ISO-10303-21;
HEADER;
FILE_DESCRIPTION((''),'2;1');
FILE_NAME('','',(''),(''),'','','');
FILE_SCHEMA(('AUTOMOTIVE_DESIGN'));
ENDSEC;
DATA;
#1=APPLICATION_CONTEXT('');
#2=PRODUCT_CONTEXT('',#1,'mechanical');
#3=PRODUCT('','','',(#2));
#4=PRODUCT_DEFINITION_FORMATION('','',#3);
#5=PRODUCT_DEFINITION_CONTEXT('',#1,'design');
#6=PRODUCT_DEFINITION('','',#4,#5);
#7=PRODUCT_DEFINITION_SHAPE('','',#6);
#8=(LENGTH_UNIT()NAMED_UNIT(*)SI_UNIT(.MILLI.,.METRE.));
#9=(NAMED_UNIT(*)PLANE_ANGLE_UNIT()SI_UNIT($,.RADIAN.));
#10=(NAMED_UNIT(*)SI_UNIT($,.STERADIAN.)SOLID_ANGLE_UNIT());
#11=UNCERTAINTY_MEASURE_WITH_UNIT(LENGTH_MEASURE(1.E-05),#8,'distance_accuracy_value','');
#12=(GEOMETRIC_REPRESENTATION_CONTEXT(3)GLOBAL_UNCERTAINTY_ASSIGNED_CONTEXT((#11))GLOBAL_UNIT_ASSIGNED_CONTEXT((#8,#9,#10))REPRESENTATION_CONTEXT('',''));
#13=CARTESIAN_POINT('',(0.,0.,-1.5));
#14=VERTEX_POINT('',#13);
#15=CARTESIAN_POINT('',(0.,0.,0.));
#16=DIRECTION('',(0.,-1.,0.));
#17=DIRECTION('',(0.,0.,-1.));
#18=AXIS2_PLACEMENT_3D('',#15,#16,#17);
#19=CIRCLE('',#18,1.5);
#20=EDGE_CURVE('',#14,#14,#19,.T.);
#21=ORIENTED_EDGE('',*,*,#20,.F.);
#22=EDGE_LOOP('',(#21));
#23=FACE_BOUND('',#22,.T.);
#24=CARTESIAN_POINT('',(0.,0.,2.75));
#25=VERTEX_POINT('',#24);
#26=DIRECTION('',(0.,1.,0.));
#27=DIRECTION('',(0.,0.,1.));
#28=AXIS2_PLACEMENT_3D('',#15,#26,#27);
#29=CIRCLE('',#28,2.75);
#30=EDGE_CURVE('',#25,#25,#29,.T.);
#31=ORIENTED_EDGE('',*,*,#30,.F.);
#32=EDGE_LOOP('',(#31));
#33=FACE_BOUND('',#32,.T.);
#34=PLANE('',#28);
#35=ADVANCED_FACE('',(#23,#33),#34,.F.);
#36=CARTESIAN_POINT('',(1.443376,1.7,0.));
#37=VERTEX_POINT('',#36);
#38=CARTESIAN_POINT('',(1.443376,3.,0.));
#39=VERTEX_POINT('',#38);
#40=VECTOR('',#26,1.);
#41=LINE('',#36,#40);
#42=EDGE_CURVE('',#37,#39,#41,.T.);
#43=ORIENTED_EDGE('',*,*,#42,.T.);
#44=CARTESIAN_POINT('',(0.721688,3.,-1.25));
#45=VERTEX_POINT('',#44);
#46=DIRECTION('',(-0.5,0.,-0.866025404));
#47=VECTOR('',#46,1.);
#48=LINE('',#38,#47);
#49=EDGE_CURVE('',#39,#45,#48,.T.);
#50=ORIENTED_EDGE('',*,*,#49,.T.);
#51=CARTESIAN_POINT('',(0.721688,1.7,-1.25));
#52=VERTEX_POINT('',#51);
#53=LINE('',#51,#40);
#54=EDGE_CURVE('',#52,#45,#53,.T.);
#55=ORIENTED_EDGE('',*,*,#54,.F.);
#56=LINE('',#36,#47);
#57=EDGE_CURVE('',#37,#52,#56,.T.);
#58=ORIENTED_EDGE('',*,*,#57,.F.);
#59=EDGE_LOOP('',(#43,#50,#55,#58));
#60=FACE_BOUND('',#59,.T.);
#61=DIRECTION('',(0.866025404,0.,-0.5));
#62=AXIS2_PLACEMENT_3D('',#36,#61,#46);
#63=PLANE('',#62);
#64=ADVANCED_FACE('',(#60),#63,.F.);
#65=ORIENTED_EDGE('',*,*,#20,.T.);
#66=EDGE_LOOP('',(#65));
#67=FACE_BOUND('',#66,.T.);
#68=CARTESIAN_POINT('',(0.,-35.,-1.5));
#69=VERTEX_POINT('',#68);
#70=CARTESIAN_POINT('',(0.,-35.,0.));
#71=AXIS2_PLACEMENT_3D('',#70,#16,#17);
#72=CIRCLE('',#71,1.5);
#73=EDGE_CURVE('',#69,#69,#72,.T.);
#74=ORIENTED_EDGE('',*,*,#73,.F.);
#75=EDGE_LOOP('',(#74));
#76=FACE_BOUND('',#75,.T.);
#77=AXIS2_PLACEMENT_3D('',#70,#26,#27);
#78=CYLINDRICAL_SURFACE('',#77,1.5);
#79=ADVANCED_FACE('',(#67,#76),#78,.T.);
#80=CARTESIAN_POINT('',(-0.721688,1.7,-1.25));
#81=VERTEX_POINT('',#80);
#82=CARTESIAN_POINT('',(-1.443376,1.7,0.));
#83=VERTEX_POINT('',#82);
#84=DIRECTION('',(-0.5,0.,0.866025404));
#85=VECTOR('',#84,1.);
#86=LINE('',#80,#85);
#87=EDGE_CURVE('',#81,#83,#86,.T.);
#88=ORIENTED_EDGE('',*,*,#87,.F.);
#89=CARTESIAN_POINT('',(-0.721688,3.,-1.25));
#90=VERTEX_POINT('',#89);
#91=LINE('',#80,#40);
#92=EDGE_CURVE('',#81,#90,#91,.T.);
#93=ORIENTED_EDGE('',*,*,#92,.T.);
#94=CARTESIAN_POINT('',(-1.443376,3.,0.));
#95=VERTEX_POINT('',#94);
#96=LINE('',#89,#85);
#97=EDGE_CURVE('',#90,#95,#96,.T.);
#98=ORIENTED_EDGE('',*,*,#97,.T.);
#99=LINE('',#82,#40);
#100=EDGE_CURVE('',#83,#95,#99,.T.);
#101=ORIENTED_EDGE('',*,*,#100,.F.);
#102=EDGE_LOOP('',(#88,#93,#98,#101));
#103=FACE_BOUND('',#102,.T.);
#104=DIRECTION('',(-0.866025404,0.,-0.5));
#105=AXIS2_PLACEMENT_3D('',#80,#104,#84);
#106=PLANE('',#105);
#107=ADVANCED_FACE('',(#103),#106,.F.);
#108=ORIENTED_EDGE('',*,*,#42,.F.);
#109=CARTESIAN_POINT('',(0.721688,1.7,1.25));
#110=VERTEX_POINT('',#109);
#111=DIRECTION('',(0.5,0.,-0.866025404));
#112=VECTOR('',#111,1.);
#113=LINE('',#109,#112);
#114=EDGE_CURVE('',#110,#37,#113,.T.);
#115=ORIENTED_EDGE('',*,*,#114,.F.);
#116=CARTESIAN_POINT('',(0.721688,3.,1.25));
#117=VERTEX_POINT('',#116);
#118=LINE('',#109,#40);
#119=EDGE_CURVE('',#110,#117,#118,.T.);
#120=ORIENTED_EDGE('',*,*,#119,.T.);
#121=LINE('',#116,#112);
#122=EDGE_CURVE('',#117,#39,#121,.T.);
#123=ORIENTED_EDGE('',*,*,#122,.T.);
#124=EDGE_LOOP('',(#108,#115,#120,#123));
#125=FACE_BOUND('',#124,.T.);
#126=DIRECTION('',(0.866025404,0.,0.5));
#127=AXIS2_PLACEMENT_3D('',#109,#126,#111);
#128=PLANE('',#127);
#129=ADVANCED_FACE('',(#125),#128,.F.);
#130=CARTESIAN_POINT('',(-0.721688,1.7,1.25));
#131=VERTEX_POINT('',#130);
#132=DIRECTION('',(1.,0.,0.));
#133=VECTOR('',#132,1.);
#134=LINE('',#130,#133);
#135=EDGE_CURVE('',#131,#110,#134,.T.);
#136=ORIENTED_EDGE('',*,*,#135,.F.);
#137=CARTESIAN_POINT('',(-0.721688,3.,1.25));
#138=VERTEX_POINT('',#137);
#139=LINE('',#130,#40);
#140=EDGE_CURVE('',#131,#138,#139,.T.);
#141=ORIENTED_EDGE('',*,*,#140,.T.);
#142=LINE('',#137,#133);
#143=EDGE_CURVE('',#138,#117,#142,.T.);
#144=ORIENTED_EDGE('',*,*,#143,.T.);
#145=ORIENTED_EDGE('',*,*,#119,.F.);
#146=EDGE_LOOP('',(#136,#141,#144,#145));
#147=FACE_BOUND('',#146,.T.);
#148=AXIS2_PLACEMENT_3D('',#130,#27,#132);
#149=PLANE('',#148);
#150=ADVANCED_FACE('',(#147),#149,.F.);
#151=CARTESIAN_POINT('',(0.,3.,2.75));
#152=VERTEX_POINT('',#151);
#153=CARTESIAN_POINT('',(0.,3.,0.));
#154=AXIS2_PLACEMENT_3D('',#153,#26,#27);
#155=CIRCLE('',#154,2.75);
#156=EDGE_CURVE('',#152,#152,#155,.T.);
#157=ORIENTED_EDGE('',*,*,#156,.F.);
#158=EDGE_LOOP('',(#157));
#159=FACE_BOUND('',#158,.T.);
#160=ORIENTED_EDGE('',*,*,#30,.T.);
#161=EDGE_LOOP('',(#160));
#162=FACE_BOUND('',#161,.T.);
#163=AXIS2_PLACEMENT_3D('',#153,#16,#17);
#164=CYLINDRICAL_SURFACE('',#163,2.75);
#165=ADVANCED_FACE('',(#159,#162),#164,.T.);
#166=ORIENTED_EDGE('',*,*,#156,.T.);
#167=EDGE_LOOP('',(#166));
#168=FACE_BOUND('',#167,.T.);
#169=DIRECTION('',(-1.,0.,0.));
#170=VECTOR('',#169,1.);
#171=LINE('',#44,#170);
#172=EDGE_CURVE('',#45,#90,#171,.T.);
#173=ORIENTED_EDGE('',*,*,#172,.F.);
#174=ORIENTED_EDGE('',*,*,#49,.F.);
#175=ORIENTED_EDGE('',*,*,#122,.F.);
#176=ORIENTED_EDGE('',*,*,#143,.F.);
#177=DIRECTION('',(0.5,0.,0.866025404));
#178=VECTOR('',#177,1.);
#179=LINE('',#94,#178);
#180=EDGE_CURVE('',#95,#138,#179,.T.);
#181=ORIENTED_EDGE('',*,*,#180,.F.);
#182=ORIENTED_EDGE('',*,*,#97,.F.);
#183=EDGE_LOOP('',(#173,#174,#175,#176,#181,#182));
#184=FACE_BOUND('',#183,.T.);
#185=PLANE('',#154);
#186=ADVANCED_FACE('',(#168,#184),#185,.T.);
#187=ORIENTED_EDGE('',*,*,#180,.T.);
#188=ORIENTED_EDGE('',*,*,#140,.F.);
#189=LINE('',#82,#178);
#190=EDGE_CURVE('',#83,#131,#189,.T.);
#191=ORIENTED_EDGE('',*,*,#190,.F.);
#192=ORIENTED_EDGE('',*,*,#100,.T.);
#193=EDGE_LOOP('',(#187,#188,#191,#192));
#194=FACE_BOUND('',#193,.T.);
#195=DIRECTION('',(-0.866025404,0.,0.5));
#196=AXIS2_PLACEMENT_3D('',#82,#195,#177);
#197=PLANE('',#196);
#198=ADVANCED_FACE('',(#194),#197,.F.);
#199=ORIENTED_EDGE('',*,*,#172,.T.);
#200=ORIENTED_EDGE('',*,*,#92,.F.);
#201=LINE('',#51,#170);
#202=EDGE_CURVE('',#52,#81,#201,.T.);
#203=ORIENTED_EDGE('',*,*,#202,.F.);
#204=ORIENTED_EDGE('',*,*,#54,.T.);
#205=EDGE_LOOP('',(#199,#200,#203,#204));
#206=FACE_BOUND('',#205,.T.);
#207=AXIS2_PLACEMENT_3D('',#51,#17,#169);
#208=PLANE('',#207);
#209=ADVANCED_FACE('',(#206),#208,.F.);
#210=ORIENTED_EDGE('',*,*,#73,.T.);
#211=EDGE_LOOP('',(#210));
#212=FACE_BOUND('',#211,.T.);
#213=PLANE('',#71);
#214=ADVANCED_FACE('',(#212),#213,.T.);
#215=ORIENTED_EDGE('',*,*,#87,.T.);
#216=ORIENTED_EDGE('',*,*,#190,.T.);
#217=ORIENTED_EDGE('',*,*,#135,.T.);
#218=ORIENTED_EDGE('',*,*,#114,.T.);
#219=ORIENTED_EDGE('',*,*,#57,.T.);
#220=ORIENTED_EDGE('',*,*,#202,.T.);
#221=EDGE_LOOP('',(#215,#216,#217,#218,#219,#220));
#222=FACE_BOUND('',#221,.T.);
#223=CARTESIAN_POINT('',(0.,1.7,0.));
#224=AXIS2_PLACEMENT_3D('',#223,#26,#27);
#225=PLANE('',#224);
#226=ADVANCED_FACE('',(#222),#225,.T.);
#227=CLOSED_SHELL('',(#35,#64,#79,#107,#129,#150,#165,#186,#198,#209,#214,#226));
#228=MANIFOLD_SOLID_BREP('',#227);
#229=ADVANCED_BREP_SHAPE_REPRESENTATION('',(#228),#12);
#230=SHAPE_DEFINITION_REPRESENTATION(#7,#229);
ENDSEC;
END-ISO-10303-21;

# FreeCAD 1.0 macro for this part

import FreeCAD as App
import Part
import Sketcher
Q = App.Units.Quantity


def add_polygon(sketch, points):
    """Adds a closed chain of lines whose ends are joined by coincident constraints."""
    first, n = sketch.GeometryCount, len(points)
    for a, b in zip(points, points[1:] + points[:1]):
        sketch.addGeometry(Part.LineSegment(App.Vector(*a, 0), App.Vector(*b, 0)), False)
    for i in range(n):
        sketch.addConstraint(Sketcher.Constraint("Coincident", first + i, 2, first + (i + 1) % n, 1))

doc = App.newDocument("Part")
body = doc.addObject("PartDesign::Body", "Body")

# Sketch on XZ plane
sketch1 = doc.addObject("Sketcher::SketchObject", "Sketch")
body.addObject(sketch1)
sketch1.AttachmentSupport = (doc.XZ_Plane, [""])
sketch1.MapMode = "FlatFace"
sketch1.addGeometry(Part.Circle(App.Vector(0, 0, 0), App.Vector(0, 0, 1), 2.75), False)
sketch1.addConstraint([
    Sketcher.Constraint("Coincident", 0, 3, -1, 1),
    Sketcher.Constraint("Diameter", 0, 5.5),
])
pad1 = doc.addObject("PartDesign::Pad", "Pad")
body.addObject(pad1)
pad1.Profile = sketch1
pad1.Length = 3
pad1.Reversed = True

# Sketch on XZ plane
sketch2 = doc.addObject("Sketcher::SketchObject", "Sketch001")
body.addObject(sketch2)
sketch2.AttachmentSupport = (doc.XZ_Plane, [""])
sketch2.MapMode = "FlatFace"
sketch2.AttachmentOffset = App.Placement(App.Vector(0, 0, -3), App.Rotation())
add_polygon(sketch2, [(1.443376, 0), (0.721688, -1.25), (-0.721688, -1.25), (-1.443376, 0), (-0.721688, 1.25), (0.721688, 1.25)])  # lines 0-5
sketch2.addConstraint([
    Sketcher.Constraint("Horizontal", 1),
    Sketcher.Constraint("Horizontal", 4),
    Sketcher.Constraint("Symmetric", 0, 2, 3, 2, -1, 1),
    Sketcher.Constraint("Symmetric", 2, 2, 5, 2, -1, 1),
    Sketcher.Constraint("PointOnObject", 2, 2, -1),
    Sketcher.Constraint("Parallel", 2, 5),
    Sketcher.Constraint("Vertical", 1, 2, 3, 2),
    Sketcher.Constraint("Angle", 0, Q("-120 deg")),
    Sketcher.Constraint("DistanceY", 1, 2, 3, 2, 2.5),
    Sketcher.Constraint("DistanceX", 1, 2, 1, 1, 1.443376),
])
pocket1 = doc.addObject("PartDesign::Pocket", "Pocket")
body.addObject(pocket1)
pocket1.Profile = sketch2
pocket1.Length = 1.3
pocket1.Reversed = True

# Sketch on XZ plane
sketch3 = doc.addObject("Sketcher::SketchObject", "Sketch002")
body.addObject(sketch3)
sketch3.AttachmentSupport = (doc.XZ_Plane, [""])
sketch3.MapMode = "FlatFace"
sketch3.addGeometry(Part.Circle(App.Vector(0, 0, 0), App.Vector(0, 0, 1), 1.5), False)
sketch3.addConstraint([
    Sketcher.Constraint("Coincident", 0, 3, -1, 1),
    Sketcher.Constraint("Diameter", 0, 3.0),
])
pad2 = doc.addObject("PartDesign::Pad", "Pad001")
body.addObject(pad2)
pad2.Profile = sketch3
pad2.Length = 35

doc.recompute()
